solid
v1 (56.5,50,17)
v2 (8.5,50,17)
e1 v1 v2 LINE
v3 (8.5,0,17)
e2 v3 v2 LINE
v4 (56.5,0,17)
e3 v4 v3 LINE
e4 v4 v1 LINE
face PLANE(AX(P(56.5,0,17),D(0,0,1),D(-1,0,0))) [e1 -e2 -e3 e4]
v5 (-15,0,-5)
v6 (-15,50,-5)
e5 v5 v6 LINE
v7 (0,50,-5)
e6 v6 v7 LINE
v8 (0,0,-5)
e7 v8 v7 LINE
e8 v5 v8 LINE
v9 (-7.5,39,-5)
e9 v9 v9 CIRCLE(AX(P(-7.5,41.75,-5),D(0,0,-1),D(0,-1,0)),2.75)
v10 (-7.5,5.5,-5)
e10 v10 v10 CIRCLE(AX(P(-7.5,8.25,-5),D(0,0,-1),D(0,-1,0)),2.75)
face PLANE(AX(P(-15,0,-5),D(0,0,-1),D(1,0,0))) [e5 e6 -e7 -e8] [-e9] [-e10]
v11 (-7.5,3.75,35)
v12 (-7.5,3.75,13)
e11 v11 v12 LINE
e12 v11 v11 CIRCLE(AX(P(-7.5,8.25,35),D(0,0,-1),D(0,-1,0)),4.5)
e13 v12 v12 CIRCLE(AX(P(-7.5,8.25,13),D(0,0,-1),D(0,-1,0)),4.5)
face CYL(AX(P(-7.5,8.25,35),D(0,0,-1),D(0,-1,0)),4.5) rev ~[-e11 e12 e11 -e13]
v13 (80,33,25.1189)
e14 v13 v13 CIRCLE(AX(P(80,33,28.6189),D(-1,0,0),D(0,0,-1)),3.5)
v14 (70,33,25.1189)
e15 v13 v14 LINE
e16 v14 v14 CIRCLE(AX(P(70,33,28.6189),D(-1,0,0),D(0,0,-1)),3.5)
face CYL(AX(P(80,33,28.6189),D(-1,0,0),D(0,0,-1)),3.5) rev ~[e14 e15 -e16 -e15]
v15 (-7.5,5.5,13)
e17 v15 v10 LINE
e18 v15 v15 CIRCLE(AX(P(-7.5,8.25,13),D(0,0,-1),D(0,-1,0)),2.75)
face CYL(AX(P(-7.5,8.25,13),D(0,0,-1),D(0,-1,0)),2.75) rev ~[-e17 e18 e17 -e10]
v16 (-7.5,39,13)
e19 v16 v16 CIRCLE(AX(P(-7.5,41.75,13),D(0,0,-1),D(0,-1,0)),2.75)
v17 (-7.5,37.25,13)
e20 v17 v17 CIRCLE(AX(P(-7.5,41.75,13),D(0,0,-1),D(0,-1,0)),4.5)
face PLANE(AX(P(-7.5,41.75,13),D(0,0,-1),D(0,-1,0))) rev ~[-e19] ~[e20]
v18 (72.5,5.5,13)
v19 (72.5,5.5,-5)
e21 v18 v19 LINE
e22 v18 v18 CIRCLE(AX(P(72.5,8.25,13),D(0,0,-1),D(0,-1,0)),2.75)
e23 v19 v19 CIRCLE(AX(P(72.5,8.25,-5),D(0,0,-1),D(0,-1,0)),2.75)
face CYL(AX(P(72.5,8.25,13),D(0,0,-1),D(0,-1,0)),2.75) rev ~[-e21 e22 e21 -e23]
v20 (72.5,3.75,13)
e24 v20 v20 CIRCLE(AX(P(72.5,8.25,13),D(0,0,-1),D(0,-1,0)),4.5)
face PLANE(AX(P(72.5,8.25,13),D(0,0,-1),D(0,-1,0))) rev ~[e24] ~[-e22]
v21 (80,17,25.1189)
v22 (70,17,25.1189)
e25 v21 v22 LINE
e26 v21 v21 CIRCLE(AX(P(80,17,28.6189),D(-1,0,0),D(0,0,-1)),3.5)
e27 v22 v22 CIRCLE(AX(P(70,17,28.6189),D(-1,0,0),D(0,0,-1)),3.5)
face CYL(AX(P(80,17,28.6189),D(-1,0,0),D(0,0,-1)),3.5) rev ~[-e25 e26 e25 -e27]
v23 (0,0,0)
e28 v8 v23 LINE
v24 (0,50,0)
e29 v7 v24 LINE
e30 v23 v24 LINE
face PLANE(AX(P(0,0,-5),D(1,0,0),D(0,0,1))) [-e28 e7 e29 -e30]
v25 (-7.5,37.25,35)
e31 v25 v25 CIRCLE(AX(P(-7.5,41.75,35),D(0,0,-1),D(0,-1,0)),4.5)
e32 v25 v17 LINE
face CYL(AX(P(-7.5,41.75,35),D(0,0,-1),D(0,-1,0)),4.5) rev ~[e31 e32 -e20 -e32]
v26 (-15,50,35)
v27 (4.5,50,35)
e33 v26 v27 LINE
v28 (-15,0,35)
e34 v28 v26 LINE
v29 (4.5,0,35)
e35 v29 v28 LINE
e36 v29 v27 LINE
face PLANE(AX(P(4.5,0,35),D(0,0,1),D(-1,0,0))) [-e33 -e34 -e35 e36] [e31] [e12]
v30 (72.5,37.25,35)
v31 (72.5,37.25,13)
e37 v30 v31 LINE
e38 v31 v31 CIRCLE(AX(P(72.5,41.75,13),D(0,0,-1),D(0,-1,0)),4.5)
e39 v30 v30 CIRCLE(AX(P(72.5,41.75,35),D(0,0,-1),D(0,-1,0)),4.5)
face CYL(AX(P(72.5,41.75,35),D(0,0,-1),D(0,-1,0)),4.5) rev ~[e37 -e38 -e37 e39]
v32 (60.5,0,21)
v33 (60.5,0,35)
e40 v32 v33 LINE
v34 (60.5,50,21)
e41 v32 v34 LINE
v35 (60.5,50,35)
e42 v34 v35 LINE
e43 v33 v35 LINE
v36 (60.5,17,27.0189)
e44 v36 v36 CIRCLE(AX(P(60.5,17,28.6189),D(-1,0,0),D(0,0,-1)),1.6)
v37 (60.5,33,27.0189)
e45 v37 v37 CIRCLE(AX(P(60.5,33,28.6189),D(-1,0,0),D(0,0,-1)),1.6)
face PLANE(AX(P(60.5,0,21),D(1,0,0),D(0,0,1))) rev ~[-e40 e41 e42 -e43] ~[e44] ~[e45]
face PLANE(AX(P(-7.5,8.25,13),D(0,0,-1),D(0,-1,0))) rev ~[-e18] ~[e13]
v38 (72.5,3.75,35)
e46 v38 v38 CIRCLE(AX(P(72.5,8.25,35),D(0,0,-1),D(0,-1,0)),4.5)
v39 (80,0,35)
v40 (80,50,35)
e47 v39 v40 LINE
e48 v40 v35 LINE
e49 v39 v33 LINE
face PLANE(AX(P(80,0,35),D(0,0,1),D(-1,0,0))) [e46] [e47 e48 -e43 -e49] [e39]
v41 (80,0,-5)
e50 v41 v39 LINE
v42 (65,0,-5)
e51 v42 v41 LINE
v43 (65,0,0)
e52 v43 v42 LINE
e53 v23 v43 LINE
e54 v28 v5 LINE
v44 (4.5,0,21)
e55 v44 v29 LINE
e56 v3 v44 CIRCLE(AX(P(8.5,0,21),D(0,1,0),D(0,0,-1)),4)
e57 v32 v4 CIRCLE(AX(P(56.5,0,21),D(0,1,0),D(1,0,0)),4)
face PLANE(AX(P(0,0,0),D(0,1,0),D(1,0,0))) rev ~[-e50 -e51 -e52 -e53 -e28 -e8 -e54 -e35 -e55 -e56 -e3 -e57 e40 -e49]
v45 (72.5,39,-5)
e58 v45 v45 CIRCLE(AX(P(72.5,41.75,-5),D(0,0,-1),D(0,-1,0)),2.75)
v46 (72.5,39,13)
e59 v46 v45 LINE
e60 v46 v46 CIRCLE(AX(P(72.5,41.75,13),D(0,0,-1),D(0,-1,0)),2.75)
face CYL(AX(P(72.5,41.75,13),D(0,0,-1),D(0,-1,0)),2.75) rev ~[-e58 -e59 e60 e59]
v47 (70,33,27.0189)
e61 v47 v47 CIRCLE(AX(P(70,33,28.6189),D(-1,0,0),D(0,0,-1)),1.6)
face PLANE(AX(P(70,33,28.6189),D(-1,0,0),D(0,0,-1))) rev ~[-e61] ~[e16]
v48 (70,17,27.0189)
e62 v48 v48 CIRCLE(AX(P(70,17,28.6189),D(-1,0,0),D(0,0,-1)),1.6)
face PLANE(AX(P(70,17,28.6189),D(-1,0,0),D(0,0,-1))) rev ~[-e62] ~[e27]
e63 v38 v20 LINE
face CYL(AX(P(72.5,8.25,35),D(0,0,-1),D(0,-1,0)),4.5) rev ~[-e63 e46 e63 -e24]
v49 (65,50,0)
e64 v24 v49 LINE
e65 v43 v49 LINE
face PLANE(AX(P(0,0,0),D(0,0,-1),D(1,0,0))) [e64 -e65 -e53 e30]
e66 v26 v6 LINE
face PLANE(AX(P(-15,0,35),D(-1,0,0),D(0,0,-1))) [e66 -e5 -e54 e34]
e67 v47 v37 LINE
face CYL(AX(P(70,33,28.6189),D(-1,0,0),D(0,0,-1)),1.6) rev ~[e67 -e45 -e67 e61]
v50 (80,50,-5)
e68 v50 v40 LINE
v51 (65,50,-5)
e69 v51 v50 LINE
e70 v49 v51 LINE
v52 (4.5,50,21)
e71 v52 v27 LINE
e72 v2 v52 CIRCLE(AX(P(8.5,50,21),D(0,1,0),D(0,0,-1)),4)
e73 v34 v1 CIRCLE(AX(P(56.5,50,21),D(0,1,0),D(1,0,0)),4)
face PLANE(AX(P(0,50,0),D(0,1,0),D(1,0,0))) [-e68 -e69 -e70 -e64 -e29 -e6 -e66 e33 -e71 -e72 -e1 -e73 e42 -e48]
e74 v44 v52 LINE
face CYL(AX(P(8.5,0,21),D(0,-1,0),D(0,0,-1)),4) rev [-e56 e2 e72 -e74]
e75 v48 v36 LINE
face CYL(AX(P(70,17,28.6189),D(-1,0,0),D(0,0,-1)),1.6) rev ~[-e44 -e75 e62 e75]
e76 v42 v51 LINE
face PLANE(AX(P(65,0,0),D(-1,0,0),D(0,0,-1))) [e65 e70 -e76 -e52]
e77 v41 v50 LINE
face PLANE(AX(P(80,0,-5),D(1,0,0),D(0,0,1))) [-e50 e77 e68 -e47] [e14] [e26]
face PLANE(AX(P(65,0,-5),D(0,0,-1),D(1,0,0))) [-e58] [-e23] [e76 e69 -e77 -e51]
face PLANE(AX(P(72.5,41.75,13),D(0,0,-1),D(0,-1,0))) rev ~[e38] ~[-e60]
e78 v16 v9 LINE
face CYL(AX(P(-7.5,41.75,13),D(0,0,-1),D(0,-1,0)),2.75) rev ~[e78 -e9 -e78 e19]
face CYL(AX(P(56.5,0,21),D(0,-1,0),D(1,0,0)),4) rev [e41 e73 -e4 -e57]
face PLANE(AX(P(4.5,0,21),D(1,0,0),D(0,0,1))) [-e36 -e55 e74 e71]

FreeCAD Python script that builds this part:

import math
import FreeCAD as App
import Part
import Sketcher

V = App.Vector
Q = App.Units.Quantity

doc = App.newDocument("Part")
body = doc.addObject("PartDesign::Body", "Body")

# Sketch on XZ plane
sketch1 = body.newObject("Sketcher::SketchObject", "Sketch")
sketch1.AttachmentSupport = (doc.getObject("XZ_Plane"), [""])
sketch1.MapMode = "FlatFace"
sketch1.addGeometry([
    Part.LineSegment(V(65, 0, 0), V(0, 0, 0)),  # 0
    Part.LineSegment(V(0, 0, 0), V(0, -5, 0)),  # 1
    Part.LineSegment(V(0, -5, 0), V(-15, -5, 0)),  # 2
    Part.LineSegment(V(-15, -5, 0), V(-15, 35, 0)),  # 3
    Part.LineSegment(V(-15, 35, 0), V(4.5, 35, 0)),  # 4
    Part.LineSegment(V(4.5, 35, 0), V(4.5, 21, 0)),  # 5
    Part.ArcOfCircle(Part.Circle(V(8.5, 21, 0), V(0, 0, 1), 4), math.radians(180), math.radians(270)),  # 6
    Part.LineSegment(V(8.5, 17, 0), V(56.5, 17, 0)),  # 7
    Part.ArcOfCircle(Part.Circle(V(56.5, 21, 0), V(0, 0, 1), 4), math.radians(-90), math.radians(0)),  # 8
    Part.LineSegment(V(60.5, 21, 0), V(60.5, 35, 0)),  # 9
    Part.LineSegment(V(60.5, 35, 0), V(80, 35, 0)),  # 10
    Part.LineSegment(V(80, 35, 0), V(80, -5, 0)),  # 11
    Part.LineSegment(V(80, -5, 0), V(65, -5, 0)),  # 12
    Part.LineSegment(V(65, -5, 0), V(65, 0, 0)),  # 13
], False)
sketch1.addConstraint([
    Sketcher.Constraint("Coincident", 0, 2, 1, 1),
    Sketcher.Constraint("Coincident", 1, 2, 2, 1),
    Sketcher.Constraint("Coincident", 2, 2, 3, 1),
    Sketcher.Constraint("Coincident", 3, 2, 4, 1),
    Sketcher.Constraint("Coincident", 4, 2, 5, 1),
    Sketcher.Constraint("Tangent", 5, 2, 6, 1),
    Sketcher.Constraint("Tangent", 6, 2, 7, 1),
    Sketcher.Constraint("Tangent", 7, 2, 8, 1),
    Sketcher.Constraint("Tangent", 8, 2, 9, 1),
    Sketcher.Constraint("Coincident", 9, 2, 10, 1),
    Sketcher.Constraint("Coincident", 10, 2, 11, 1),
    Sketcher.Constraint("Coincident", 11, 2, 12, 1),
    Sketcher.Constraint("Coincident", 12, 2, 13, 1),
    Sketcher.Constraint("Coincident", 13, 2, 0, 1),
    Sketcher.Constraint("Horizontal", 0),
    Sketcher.Constraint("Vertical", 1),
    Sketcher.Constraint("Horizontal", 2),
    Sketcher.Constraint("Vertical", 3),
    Sketcher.Constraint("Horizontal", 4),
    Sketcher.Constraint("Vertical", 5),
    Sketcher.Constraint("Horizontal", 7),
    Sketcher.Constraint("Vertical", 9),
    Sketcher.Constraint("Horizontal", 10),
    Sketcher.Constraint("Vertical", 11),
    Sketcher.Constraint("Horizontal", 12),
    Sketcher.Constraint("Vertical", 13),
    Sketcher.Constraint("Coincident", 0, 2, -1, 1),
    Sketcher.Constraint("Equal", 6, 8),
    Sketcher.Constraint("Horizontal", 4, 2, 9, 2),
    Sketcher.Constraint("Horizontal", 2, 2, 11, 2),
    Sketcher.Constraint("Equal", 4, 10),
    Sketcher.Constraint("Equal", 2, 12),
    Sketcher.Constraint("Radius", 6, Q("4 mm")),
    Sketcher.Constraint("DistanceX", 0, 2, 0, 1, Q("65 mm")),
    Sketcher.Constraint("DistanceY", -1, 1, 6, 2, Q("17 mm")),
    Sketcher.Constraint("DistanceX", 5, 2, 8, 2, Q("56 mm")),
    Sketcher.Constraint("DistanceX", 2, 2, 2, 1, Q("15 mm")),
    Sketcher.Constraint("DistanceY", 1, 2, 1, 1, Q("5 mm")),
    Sketcher.Constraint("DistanceY", 3, 1, 3, 2, Q("40 mm")),
])
pad1 = body.newObject("PartDesign::Pad", "Pad")
pad1.Profile = sketch1
pad1.Length = 50
pad1.Reversed = True

# Sketch on XY plane
sketch2 = body.newObject("Sketcher::SketchObject", "Sketch001")
sketch2.AttachmentSupport = (doc.getObject("XY_Plane"), [""])
sketch2.MapMode = "FlatFace"
sketch2.AttachmentOffset = App.Placement(V(0, 0, 35), App.Rotation())
sketch2.addGeometry([
    Part.Circle(V(-7.5, 41.8, 0), V(0, 0, 1), 2.8),
    Part.Circle(V(72.5, 41.8, 0), V(0, 0, 1), 2.8),
    Part.Circle(V(72.5, 8.2, 0), V(0, 0, 1), 2.8),
    Part.Circle(V(-7.5, 8.2, 0), V(0, 0, 1), 2.8),
], False)
sketch2.addConstraint([
    Sketcher.Constraint("Equal", 0, 1),
    Sketcher.Constraint("Equal", 1, 2),
    Sketcher.Constraint("Equal", 2, 3),
    Sketcher.Constraint("Horizontal", 0, 3, 1, 3),
    Sketcher.Constraint("Horizontal", 2, 3, 3, 3),
    Sketcher.Constraint("Vertical", 1, 3, 2, 3),
    Sketcher.Constraint("Vertical", 0, 3, 3, 3),
    Sketcher.Constraint("Diameter", 0, Q("5.5 mm")),
    Sketcher.Constraint("DistanceX", 0, 3, 1, 3, Q("80 mm")),
    Sketcher.Constraint("DistanceX", 0, 3, -1, 1, Q("7.5 mm")),
    Sketcher.Constraint("DistanceY", 2, 3, 1, 3, Q("33.5 mm")),
    Sketcher.Constraint("DistanceY", -1, 1, 0, 3, Q("41.75 mm")),
])
doc.recompute()
hole = body.newObject("PartDesign::Hole", "Hole")
hole.Profile = sketch2
hole.ThreadType = "None"
hole.Diameter = 5.5
hole.DepthType = "Dimension"
hole.Depth = 40
hole.DrillPoint = "Angled"
hole.DrillPointAngle = 118
hole.HoleCutType = "Counterbore"
hole.HoleCutDiameter = 9
hole.HoleCutDepth = 22

# Sketch on YZ plane
sketch3 = body.newObject("Sketcher::SketchObject", "Sketch002")
sketch3.AttachmentSupport = (doc.getObject("YZ_Plane"), [""])
sketch3.MapMode = "FlatFace"
sketch3.AttachmentOffset = App.Placement(V(0, 0, 80), App.Rotation())
sketch3.addGeometry([
    Part.Circle(V(17, 28.6, 0), V(0, 0, 1), 1.6),
    Part.Circle(V(33, 28.6, 0), V(0, 0, 1), 1.6),
], False)
sketch3.addConstraint([
    Sketcher.Constraint("Equal", 0, 1),
    Sketcher.Constraint("Horizontal", 0, 3, 1, 3),
    Sketcher.Constraint("Diameter", 0, Q("3.2 mm")),
    Sketcher.Constraint("DistanceX", -1, 1, 0, 3, Q("17 mm")),
    Sketcher.Constraint("DistanceX", -1, 1, 1, 3, Q("33 mm")),
    Sketcher.Constraint("DistanceY", -1, 1, 0, 3, Q("28.619 mm")),
])
doc.recompute()
hole2 = body.newObject("PartDesign::Hole", "Hole001")
hole2.Profile = sketch3
hole2.ThreadType = "None"
hole2.Diameter = 3.2
hole2.DepthType = "Dimension"
hole2.Depth = 40
hole2.DrillPoint = "Angled"
hole2.DrillPointAngle = 118
hole2.HoleCutType = "Counterbore"
hole2.HoleCutDiameter = 7
hole2.HoleCutDepth = 10

doc.recompute()
